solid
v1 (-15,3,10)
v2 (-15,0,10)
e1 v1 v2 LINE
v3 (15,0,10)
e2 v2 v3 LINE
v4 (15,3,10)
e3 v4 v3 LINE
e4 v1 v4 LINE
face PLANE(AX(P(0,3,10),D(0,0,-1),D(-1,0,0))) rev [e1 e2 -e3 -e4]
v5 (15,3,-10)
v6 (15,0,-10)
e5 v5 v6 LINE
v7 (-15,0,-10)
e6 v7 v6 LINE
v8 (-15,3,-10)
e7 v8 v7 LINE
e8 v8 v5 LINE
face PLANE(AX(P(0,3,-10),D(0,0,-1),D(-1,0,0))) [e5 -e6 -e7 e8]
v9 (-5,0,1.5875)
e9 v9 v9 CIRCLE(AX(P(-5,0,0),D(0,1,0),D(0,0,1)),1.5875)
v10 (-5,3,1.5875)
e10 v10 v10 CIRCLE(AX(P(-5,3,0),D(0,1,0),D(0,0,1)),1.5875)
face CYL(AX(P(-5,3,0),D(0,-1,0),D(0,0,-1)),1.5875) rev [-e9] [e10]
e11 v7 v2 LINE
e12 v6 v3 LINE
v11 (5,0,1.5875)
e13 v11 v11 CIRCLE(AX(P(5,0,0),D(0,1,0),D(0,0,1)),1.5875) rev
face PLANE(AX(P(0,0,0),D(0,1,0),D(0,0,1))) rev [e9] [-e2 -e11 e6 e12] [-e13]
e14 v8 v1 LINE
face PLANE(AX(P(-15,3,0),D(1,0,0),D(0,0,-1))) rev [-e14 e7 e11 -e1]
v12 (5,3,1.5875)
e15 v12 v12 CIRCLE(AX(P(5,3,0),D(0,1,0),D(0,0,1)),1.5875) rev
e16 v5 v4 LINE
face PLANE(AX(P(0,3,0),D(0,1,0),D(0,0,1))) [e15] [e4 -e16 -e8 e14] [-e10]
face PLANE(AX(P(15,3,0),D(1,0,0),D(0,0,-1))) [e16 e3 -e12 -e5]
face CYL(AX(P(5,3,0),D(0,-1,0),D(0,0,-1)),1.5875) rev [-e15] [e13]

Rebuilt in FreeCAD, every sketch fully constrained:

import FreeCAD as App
import Part
import Sketcher
from FreeCAD import Vector


def add_polygon(sketch, points):
    """Adds a closed chain of lines whose ends are joined by coincident constraints."""
    first, n = sketch.GeometryCount, len(points)
    for a, b in zip(points, points[1:] + points[:1]):
        sketch.addGeometry(Part.LineSegment(App.Vector(*a, 0), App.Vector(*b, 0)), False)
    for i in range(n):
        sketch.addConstraint(Sketcher.Constraint("Coincident", first + i, 2, first + (i + 1) % n, 1))

doc = App.newDocument("Part")
body = doc.addObject("PartDesign::Body", "Body")

# Sketch on XZ plane
sketch1 = doc.addObject("Sketcher::SketchObject", "Sketch")
body.addObject(sketch1)
sketch1.AttachmentSupport = (doc.XZ_Plane, [""])
sketch1.MapMode = "FlatFace"
add_polygon(sketch1, [(-15, 10), (15, 10), (15, -10), (-15, -10)])  # lines 0-3
sketch1.addGeometry(Part.Circle(Vector(5, 0, 0), Vector(0, 0, 1), 1.5875), False)  # 4
sketch1.addGeometry(Part.Circle(Vector(-5, 0, 0), Vector(0, 0, 1), 1.5875), False)  # 5
sketch1.addConstraint(Sketcher.Constraint("Horizontal", 0))
sketch1.addConstraint(Sketcher.Constraint("Vertical", 1))
sketch1.addConstraint(Sketcher.Constraint("Horizontal", 2))
sketch1.addConstraint(Sketcher.Constraint("Vertical", 3))
sketch1.addConstraint(Sketcher.Constraint("Equal", 4, 5))
sketch1.addConstraint(Sketcher.Constraint("Symmetric", 4, 3, 5, 3, -1, 1))
sketch1.addConstraint(Sketcher.Constraint("Symmetric", 0, 2, 2, 2, -1, 1))
sketch1.addConstraint(Sketcher.Constraint("PointOnObject", 4, 3, -1))
sketch1.addConstraint(Sketcher.Constraint("DistanceX", 0, 1, 0, 2, 30.0))
sketch1.addConstraint(Sketcher.Constraint("DistanceY", 1, 2, 1, 1, 20.0))
sketch1.addConstraint(Sketcher.Constraint("Diameter", 4, 3.175))
sketch1.addConstraint(Sketcher.Constraint("DistanceX", -1, 1, 4, 3, 5.0))
pad1 = doc.addObject("PartDesign::Pad", "Pad")
body.addObject(pad1)
pad1.Profile = sketch1
pad1.Length = 3
pad1.Reversed = True

doc.recompute()
